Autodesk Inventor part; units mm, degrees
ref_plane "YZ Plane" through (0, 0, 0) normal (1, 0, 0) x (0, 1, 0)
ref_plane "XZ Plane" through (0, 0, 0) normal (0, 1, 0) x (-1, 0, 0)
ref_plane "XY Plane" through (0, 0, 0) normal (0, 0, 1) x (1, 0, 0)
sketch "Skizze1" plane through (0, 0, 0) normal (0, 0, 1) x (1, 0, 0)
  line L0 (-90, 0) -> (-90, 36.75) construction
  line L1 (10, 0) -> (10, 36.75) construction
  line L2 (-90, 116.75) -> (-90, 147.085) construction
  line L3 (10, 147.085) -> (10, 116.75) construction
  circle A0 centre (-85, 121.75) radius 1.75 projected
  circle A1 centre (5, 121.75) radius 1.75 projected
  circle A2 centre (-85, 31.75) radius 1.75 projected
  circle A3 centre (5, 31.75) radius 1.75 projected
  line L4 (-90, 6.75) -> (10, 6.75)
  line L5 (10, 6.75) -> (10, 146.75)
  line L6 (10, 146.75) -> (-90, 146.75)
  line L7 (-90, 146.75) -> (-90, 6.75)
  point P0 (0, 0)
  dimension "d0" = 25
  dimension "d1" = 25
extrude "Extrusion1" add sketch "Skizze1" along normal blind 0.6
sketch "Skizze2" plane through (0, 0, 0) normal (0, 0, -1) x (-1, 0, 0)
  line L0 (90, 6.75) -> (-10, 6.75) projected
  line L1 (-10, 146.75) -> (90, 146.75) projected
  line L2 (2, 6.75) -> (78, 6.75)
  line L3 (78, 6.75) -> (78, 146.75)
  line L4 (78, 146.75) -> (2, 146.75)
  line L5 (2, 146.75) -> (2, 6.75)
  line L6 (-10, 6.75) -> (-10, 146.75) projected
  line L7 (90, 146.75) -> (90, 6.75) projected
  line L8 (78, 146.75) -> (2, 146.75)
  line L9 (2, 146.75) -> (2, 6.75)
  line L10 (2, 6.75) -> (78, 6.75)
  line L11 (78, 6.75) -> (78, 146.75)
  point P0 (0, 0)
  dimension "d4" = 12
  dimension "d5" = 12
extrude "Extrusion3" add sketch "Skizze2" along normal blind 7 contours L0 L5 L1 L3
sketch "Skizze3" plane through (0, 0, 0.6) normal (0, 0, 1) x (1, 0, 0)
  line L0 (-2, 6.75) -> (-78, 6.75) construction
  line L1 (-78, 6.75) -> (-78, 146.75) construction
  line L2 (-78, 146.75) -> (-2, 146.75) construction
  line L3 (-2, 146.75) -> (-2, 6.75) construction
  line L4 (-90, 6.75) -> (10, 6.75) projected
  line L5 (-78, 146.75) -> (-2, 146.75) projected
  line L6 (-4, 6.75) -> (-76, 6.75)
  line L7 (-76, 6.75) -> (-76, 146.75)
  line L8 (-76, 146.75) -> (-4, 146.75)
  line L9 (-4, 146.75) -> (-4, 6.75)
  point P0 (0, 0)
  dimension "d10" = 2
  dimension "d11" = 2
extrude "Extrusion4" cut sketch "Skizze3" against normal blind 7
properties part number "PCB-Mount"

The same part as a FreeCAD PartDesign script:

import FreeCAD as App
import Part
import Sketcher

V = App.Vector
Q = App.Units.Quantity


def add_polygon(sketch, points):
    """Adds a closed chain of lines whose ends are joined by coincident constraints."""
    first, n = sketch.GeometryCount, len(points)
    for a, b in zip(points, points[1:] + points[:1]):
        sketch.addGeometry(Part.LineSegment(App.Vector(*a, 0), App.Vector(*b, 0)), False)
    for i in range(n):
        sketch.addConstraint(Sketcher.Constraint("Coincident", first + i, 2, first + (i + 1) % n, 1))

doc = App.newDocument("Part")
body = doc.addObject("PartDesign::Body", "Body")

# Sketch on XY plane
sketch1 = doc.addObject("Sketcher::SketchObject", "Sketch")
body.addObject(sketch1)
sketch1.AttachmentSupport = (doc.XY_Plane, [""])
sketch1.MapMode = "FlatFace"
add_polygon(sketch1, [(-90, 146.75), (-90, 6.75), (10, 6.75), (10, 146.75)])  # lines 0-3
sketch1.addGeometry(Part.Circle(V(-85, 31.75, 0), V(0, 0, 1), 1.75), False)  # 4
sketch1.addGeometry(Part.Circle(V(5, 31.75, 0), V(0, 0, 1), 1.75), False)  # 5
sketch1.addGeometry(Part.Circle(V(-85, 121.75, 0), V(0, 0, 1), 1.75), False)  # 6
sketch1.addGeometry(Part.Circle(V(5, 121.75, 0), V(0, 0, 1), 1.75), False)  # 7
sketch1.addConstraint([
    Sketcher.Constraint("Vertical", 0),
    Sketcher.Constraint("Horizontal", 1),
    Sketcher.Constraint("Vertical", 2),
    Sketcher.Constraint("Horizontal", 3),
    Sketcher.Constraint("Equal", 4, 5),
    Sketcher.Constraint("Equal", 5, 6),
    Sketcher.Constraint("Equal", 6, 7),
    Sketcher.Constraint("Horizontal", 4, 3, 5, 3),
    Sketcher.Constraint("Horizontal", 6, 3, 7, 3),
    Sketcher.Constraint("Vertical", 4, 3, 6, 3),
    Sketcher.Constraint("Vertical", 5, 3, 7, 3),
    Sketcher.Constraint("DistanceY", 0, 2, 4, 3, Q("25 mm")),
    Sketcher.Constraint("DistanceY", 7, 3, 2, 2, Q("25 mm")),
    Sketcher.Constraint("Diameter", 4, Q("3.5 mm")),
    Sketcher.Constraint("DistanceX", 1, 1, 1, 2, Q("100 mm")),
    Sketcher.Constraint("DistanceY", 0, 2, 0, 1, Q("140 mm")),
    Sketcher.Constraint("DistanceX", 4, 3, -1, 1, Q("85 mm")),
    Sketcher.Constraint("DistanceX", -1, 1, 5, 3, Q("5 mm")),
    Sketcher.Constraint("DistanceX", 0, 2, -1, 1, Q("90 mm")),
    Sketcher.Constraint("DistanceY", -1, 1, 4, 3, Q("31.75 mm")),
])
pad1 = doc.addObject("PartDesign::Pad", "Pad")
body.addObject(pad1)
pad1.Profile = sketch1
pad1.Length = 0.6

# Sketch on XY plane
sketch2 = doc.addObject("Sketcher::SketchObject", "Sketch001")
body.addObject(sketch2)
sketch2.AttachmentSupport = (doc.XY_Plane, [""])
sketch2.MapMode = "FlatFace"
add_polygon(sketch2, [(-2, 6.75), (-78, 6.75), (-78, 146.75), (-2, 146.75)])  # lines 0-3
sketch2.addConstraint([
    Sketcher.Constraint("Horizontal", 0),
    Sketcher.Constraint("Vertical", 1),
    Sketcher.Constraint("Horizontal", 2),
    Sketcher.Constraint("Vertical", 3),
    Sketcher.Constraint("DistanceX", 0, 2, 0, 1, Q("76 mm")),
    Sketcher.Constraint("DistanceY", 1, 1, 1, 2, Q("140 mm")),
    Sketcher.Constraint("DistanceX", 0, 2, -1, 1, Q("78 mm")),
    Sketcher.Constraint("DistanceY", -1, 1, 0, 2, Q("6.75 mm")),
])
pad2 = doc.addObject("PartDesign::Pad", "Pad001")
body.addObject(pad2)
pad2.Profile = sketch2
pad2.Length = 7
pad2.Reversed = True

# Sketch on XY plane
sketch3 = doc.addObject("Sketcher::SketchObject", "Sketch002")
body.addObject(sketch3)
sketch3.AttachmentSupport = (doc.XY_Plane, [""])
sketch3.MapMode = "FlatFace"
sketch3.AttachmentOffset = App.Placement(V(0, 0, 0.6), App.Rotation())
add_polygon(sketch3, [(-76, 146.75), (-76, 6.75), (-4, 6.75), (-4, 146.75)])  # lines 0-3
sketch3.addConstraint([
    Sketcher.Constraint("Vertical", 0),
    Sketcher.Constraint("Horizontal", 1),
    Sketcher.Constraint("Vertical", 2),
    Sketcher.Constraint("Horizontal", 3),
    Sketcher.Constraint("DistanceX", 1, 1, 1, 2, Q("72 mm")),
    Sketcher.Constraint("DistanceY", 0, 2, 0, 1, Q("140 mm")),
    Sketcher.Constraint("DistanceX", 0, 2, -1, 1, Q("76 mm")),
    Sketcher.Constraint("DistanceY", -1, 1, 0, 2, Q("6.75 mm")),
])
pocket1 = doc.addObject("PartDesign::Pocket", "Pocket")
body.addObject(pocket1)
pocket1.Profile = sketch3
pocket1.Length = 7

doc.recompute()
